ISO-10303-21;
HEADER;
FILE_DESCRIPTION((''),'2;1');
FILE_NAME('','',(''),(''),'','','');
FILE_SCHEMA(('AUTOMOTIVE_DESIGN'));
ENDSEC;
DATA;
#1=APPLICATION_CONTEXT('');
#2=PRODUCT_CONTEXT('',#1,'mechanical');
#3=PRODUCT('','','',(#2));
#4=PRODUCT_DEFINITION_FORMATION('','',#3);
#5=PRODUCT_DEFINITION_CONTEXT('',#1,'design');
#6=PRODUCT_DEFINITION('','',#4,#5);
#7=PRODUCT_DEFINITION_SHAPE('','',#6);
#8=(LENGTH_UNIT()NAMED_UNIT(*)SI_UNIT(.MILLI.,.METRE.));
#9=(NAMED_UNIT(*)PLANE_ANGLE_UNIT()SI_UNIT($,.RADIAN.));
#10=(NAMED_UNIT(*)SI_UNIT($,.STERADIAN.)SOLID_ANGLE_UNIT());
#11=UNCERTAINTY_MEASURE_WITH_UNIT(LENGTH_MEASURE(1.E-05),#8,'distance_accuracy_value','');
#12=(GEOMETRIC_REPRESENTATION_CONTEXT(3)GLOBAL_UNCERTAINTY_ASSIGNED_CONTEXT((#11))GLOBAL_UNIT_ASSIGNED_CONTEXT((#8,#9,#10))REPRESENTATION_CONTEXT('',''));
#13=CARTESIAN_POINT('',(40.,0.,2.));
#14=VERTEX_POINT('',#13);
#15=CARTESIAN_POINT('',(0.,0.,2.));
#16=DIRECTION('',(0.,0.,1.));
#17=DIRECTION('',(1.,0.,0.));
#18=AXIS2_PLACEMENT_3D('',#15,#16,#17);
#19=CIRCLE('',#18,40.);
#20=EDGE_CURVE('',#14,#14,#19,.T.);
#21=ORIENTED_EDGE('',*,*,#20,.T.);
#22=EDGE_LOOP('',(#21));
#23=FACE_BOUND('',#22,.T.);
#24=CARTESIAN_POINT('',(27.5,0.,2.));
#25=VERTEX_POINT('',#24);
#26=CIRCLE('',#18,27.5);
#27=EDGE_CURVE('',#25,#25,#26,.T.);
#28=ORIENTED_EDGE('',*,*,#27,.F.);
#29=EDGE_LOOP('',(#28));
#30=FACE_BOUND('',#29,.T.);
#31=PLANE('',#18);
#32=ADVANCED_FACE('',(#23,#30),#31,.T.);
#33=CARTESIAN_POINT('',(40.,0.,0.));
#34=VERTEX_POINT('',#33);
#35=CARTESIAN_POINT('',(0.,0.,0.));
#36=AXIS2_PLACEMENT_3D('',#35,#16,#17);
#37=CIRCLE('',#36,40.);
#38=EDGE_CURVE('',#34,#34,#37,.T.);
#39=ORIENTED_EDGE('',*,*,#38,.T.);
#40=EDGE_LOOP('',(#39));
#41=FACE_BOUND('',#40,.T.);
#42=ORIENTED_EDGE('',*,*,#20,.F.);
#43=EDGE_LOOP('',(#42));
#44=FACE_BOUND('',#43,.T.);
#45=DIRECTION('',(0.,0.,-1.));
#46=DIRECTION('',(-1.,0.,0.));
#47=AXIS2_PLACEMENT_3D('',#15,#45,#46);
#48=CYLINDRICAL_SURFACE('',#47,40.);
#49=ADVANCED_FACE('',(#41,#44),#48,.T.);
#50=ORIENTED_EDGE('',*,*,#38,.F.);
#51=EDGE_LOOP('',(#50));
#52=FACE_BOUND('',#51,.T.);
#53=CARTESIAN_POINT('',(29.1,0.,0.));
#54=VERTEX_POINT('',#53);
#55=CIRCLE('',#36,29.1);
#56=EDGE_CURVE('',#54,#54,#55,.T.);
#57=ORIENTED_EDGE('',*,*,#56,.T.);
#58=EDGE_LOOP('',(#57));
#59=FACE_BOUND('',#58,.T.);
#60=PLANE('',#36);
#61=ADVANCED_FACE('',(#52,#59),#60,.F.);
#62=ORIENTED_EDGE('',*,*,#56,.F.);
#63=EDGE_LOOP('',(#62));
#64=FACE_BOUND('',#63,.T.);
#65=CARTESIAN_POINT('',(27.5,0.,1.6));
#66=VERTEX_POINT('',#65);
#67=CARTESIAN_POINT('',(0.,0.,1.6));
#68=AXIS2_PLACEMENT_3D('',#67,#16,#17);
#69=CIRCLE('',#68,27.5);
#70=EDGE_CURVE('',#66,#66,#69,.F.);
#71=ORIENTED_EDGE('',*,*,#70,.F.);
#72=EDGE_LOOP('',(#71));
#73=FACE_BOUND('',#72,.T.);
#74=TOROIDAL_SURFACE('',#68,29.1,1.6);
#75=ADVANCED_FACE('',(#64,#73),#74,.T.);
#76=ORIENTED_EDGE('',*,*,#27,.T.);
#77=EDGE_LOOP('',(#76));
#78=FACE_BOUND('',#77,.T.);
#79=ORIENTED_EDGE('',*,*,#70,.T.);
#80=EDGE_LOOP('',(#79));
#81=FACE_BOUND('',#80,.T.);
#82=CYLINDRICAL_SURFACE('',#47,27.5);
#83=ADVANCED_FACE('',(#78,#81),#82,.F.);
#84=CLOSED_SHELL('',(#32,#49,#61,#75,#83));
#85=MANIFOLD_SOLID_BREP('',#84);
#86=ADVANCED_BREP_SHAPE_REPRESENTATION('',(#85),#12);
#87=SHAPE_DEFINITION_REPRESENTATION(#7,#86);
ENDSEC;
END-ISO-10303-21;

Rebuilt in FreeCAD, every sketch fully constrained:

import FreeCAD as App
import Part
import Sketcher
Q = App.Units.Quantity


def edges_at(feature, points):
    """Names of the edges that pass closest to the given points."""
    edges = feature.Shape.Edges
    near = lambda p: min(range(len(edges)), key=lambda i: edges[i].distToShape(Part.Vertex(*p))[0])
    return sorted({f"Edge{near(p) + 1}" for p in points})

doc = App.newDocument("Part")
body = doc.addObject("PartDesign::Body", "Body")

sketch1 = body.newObject("Sketcher::SketchObject", "Sketch")
sketch1.AttachmentSupport = (doc.getObject("XY_Plane"), [""])
sketch1.MapMode = "FlatFace"
sketch1.addGeometry([
    Part.Circle(App.Vector(0, 0, 0), App.Vector(0, 0, 1), 40),
    Part.Circle(App.Vector(0, 0, 0), App.Vector(0, 0, 1), 27.5),
], False)
sketch1.addConstraint([
    Sketcher.Constraint("Coincident", 0, 3, -1, 1),
    Sketcher.Constraint("Coincident", 1, 3, -1, 1),
    Sketcher.Constraint("Diameter", 0, Q("80 mm")),
    Sketcher.Constraint("Diameter", 1, Q("55 mm")),
])
pad1 = body.newObject("PartDesign::Pad", "Pad")
pad1.Profile = sketch1
pad1.Length = 2
doc.recompute()

fillet = body.newObject("PartDesign::Fillet", "Fillet")
fillet.Base = (pad1, edges_at(pad1, [(-27.5, 0, 0)]))
fillet.Radius = 1.6

doc.recompute()
